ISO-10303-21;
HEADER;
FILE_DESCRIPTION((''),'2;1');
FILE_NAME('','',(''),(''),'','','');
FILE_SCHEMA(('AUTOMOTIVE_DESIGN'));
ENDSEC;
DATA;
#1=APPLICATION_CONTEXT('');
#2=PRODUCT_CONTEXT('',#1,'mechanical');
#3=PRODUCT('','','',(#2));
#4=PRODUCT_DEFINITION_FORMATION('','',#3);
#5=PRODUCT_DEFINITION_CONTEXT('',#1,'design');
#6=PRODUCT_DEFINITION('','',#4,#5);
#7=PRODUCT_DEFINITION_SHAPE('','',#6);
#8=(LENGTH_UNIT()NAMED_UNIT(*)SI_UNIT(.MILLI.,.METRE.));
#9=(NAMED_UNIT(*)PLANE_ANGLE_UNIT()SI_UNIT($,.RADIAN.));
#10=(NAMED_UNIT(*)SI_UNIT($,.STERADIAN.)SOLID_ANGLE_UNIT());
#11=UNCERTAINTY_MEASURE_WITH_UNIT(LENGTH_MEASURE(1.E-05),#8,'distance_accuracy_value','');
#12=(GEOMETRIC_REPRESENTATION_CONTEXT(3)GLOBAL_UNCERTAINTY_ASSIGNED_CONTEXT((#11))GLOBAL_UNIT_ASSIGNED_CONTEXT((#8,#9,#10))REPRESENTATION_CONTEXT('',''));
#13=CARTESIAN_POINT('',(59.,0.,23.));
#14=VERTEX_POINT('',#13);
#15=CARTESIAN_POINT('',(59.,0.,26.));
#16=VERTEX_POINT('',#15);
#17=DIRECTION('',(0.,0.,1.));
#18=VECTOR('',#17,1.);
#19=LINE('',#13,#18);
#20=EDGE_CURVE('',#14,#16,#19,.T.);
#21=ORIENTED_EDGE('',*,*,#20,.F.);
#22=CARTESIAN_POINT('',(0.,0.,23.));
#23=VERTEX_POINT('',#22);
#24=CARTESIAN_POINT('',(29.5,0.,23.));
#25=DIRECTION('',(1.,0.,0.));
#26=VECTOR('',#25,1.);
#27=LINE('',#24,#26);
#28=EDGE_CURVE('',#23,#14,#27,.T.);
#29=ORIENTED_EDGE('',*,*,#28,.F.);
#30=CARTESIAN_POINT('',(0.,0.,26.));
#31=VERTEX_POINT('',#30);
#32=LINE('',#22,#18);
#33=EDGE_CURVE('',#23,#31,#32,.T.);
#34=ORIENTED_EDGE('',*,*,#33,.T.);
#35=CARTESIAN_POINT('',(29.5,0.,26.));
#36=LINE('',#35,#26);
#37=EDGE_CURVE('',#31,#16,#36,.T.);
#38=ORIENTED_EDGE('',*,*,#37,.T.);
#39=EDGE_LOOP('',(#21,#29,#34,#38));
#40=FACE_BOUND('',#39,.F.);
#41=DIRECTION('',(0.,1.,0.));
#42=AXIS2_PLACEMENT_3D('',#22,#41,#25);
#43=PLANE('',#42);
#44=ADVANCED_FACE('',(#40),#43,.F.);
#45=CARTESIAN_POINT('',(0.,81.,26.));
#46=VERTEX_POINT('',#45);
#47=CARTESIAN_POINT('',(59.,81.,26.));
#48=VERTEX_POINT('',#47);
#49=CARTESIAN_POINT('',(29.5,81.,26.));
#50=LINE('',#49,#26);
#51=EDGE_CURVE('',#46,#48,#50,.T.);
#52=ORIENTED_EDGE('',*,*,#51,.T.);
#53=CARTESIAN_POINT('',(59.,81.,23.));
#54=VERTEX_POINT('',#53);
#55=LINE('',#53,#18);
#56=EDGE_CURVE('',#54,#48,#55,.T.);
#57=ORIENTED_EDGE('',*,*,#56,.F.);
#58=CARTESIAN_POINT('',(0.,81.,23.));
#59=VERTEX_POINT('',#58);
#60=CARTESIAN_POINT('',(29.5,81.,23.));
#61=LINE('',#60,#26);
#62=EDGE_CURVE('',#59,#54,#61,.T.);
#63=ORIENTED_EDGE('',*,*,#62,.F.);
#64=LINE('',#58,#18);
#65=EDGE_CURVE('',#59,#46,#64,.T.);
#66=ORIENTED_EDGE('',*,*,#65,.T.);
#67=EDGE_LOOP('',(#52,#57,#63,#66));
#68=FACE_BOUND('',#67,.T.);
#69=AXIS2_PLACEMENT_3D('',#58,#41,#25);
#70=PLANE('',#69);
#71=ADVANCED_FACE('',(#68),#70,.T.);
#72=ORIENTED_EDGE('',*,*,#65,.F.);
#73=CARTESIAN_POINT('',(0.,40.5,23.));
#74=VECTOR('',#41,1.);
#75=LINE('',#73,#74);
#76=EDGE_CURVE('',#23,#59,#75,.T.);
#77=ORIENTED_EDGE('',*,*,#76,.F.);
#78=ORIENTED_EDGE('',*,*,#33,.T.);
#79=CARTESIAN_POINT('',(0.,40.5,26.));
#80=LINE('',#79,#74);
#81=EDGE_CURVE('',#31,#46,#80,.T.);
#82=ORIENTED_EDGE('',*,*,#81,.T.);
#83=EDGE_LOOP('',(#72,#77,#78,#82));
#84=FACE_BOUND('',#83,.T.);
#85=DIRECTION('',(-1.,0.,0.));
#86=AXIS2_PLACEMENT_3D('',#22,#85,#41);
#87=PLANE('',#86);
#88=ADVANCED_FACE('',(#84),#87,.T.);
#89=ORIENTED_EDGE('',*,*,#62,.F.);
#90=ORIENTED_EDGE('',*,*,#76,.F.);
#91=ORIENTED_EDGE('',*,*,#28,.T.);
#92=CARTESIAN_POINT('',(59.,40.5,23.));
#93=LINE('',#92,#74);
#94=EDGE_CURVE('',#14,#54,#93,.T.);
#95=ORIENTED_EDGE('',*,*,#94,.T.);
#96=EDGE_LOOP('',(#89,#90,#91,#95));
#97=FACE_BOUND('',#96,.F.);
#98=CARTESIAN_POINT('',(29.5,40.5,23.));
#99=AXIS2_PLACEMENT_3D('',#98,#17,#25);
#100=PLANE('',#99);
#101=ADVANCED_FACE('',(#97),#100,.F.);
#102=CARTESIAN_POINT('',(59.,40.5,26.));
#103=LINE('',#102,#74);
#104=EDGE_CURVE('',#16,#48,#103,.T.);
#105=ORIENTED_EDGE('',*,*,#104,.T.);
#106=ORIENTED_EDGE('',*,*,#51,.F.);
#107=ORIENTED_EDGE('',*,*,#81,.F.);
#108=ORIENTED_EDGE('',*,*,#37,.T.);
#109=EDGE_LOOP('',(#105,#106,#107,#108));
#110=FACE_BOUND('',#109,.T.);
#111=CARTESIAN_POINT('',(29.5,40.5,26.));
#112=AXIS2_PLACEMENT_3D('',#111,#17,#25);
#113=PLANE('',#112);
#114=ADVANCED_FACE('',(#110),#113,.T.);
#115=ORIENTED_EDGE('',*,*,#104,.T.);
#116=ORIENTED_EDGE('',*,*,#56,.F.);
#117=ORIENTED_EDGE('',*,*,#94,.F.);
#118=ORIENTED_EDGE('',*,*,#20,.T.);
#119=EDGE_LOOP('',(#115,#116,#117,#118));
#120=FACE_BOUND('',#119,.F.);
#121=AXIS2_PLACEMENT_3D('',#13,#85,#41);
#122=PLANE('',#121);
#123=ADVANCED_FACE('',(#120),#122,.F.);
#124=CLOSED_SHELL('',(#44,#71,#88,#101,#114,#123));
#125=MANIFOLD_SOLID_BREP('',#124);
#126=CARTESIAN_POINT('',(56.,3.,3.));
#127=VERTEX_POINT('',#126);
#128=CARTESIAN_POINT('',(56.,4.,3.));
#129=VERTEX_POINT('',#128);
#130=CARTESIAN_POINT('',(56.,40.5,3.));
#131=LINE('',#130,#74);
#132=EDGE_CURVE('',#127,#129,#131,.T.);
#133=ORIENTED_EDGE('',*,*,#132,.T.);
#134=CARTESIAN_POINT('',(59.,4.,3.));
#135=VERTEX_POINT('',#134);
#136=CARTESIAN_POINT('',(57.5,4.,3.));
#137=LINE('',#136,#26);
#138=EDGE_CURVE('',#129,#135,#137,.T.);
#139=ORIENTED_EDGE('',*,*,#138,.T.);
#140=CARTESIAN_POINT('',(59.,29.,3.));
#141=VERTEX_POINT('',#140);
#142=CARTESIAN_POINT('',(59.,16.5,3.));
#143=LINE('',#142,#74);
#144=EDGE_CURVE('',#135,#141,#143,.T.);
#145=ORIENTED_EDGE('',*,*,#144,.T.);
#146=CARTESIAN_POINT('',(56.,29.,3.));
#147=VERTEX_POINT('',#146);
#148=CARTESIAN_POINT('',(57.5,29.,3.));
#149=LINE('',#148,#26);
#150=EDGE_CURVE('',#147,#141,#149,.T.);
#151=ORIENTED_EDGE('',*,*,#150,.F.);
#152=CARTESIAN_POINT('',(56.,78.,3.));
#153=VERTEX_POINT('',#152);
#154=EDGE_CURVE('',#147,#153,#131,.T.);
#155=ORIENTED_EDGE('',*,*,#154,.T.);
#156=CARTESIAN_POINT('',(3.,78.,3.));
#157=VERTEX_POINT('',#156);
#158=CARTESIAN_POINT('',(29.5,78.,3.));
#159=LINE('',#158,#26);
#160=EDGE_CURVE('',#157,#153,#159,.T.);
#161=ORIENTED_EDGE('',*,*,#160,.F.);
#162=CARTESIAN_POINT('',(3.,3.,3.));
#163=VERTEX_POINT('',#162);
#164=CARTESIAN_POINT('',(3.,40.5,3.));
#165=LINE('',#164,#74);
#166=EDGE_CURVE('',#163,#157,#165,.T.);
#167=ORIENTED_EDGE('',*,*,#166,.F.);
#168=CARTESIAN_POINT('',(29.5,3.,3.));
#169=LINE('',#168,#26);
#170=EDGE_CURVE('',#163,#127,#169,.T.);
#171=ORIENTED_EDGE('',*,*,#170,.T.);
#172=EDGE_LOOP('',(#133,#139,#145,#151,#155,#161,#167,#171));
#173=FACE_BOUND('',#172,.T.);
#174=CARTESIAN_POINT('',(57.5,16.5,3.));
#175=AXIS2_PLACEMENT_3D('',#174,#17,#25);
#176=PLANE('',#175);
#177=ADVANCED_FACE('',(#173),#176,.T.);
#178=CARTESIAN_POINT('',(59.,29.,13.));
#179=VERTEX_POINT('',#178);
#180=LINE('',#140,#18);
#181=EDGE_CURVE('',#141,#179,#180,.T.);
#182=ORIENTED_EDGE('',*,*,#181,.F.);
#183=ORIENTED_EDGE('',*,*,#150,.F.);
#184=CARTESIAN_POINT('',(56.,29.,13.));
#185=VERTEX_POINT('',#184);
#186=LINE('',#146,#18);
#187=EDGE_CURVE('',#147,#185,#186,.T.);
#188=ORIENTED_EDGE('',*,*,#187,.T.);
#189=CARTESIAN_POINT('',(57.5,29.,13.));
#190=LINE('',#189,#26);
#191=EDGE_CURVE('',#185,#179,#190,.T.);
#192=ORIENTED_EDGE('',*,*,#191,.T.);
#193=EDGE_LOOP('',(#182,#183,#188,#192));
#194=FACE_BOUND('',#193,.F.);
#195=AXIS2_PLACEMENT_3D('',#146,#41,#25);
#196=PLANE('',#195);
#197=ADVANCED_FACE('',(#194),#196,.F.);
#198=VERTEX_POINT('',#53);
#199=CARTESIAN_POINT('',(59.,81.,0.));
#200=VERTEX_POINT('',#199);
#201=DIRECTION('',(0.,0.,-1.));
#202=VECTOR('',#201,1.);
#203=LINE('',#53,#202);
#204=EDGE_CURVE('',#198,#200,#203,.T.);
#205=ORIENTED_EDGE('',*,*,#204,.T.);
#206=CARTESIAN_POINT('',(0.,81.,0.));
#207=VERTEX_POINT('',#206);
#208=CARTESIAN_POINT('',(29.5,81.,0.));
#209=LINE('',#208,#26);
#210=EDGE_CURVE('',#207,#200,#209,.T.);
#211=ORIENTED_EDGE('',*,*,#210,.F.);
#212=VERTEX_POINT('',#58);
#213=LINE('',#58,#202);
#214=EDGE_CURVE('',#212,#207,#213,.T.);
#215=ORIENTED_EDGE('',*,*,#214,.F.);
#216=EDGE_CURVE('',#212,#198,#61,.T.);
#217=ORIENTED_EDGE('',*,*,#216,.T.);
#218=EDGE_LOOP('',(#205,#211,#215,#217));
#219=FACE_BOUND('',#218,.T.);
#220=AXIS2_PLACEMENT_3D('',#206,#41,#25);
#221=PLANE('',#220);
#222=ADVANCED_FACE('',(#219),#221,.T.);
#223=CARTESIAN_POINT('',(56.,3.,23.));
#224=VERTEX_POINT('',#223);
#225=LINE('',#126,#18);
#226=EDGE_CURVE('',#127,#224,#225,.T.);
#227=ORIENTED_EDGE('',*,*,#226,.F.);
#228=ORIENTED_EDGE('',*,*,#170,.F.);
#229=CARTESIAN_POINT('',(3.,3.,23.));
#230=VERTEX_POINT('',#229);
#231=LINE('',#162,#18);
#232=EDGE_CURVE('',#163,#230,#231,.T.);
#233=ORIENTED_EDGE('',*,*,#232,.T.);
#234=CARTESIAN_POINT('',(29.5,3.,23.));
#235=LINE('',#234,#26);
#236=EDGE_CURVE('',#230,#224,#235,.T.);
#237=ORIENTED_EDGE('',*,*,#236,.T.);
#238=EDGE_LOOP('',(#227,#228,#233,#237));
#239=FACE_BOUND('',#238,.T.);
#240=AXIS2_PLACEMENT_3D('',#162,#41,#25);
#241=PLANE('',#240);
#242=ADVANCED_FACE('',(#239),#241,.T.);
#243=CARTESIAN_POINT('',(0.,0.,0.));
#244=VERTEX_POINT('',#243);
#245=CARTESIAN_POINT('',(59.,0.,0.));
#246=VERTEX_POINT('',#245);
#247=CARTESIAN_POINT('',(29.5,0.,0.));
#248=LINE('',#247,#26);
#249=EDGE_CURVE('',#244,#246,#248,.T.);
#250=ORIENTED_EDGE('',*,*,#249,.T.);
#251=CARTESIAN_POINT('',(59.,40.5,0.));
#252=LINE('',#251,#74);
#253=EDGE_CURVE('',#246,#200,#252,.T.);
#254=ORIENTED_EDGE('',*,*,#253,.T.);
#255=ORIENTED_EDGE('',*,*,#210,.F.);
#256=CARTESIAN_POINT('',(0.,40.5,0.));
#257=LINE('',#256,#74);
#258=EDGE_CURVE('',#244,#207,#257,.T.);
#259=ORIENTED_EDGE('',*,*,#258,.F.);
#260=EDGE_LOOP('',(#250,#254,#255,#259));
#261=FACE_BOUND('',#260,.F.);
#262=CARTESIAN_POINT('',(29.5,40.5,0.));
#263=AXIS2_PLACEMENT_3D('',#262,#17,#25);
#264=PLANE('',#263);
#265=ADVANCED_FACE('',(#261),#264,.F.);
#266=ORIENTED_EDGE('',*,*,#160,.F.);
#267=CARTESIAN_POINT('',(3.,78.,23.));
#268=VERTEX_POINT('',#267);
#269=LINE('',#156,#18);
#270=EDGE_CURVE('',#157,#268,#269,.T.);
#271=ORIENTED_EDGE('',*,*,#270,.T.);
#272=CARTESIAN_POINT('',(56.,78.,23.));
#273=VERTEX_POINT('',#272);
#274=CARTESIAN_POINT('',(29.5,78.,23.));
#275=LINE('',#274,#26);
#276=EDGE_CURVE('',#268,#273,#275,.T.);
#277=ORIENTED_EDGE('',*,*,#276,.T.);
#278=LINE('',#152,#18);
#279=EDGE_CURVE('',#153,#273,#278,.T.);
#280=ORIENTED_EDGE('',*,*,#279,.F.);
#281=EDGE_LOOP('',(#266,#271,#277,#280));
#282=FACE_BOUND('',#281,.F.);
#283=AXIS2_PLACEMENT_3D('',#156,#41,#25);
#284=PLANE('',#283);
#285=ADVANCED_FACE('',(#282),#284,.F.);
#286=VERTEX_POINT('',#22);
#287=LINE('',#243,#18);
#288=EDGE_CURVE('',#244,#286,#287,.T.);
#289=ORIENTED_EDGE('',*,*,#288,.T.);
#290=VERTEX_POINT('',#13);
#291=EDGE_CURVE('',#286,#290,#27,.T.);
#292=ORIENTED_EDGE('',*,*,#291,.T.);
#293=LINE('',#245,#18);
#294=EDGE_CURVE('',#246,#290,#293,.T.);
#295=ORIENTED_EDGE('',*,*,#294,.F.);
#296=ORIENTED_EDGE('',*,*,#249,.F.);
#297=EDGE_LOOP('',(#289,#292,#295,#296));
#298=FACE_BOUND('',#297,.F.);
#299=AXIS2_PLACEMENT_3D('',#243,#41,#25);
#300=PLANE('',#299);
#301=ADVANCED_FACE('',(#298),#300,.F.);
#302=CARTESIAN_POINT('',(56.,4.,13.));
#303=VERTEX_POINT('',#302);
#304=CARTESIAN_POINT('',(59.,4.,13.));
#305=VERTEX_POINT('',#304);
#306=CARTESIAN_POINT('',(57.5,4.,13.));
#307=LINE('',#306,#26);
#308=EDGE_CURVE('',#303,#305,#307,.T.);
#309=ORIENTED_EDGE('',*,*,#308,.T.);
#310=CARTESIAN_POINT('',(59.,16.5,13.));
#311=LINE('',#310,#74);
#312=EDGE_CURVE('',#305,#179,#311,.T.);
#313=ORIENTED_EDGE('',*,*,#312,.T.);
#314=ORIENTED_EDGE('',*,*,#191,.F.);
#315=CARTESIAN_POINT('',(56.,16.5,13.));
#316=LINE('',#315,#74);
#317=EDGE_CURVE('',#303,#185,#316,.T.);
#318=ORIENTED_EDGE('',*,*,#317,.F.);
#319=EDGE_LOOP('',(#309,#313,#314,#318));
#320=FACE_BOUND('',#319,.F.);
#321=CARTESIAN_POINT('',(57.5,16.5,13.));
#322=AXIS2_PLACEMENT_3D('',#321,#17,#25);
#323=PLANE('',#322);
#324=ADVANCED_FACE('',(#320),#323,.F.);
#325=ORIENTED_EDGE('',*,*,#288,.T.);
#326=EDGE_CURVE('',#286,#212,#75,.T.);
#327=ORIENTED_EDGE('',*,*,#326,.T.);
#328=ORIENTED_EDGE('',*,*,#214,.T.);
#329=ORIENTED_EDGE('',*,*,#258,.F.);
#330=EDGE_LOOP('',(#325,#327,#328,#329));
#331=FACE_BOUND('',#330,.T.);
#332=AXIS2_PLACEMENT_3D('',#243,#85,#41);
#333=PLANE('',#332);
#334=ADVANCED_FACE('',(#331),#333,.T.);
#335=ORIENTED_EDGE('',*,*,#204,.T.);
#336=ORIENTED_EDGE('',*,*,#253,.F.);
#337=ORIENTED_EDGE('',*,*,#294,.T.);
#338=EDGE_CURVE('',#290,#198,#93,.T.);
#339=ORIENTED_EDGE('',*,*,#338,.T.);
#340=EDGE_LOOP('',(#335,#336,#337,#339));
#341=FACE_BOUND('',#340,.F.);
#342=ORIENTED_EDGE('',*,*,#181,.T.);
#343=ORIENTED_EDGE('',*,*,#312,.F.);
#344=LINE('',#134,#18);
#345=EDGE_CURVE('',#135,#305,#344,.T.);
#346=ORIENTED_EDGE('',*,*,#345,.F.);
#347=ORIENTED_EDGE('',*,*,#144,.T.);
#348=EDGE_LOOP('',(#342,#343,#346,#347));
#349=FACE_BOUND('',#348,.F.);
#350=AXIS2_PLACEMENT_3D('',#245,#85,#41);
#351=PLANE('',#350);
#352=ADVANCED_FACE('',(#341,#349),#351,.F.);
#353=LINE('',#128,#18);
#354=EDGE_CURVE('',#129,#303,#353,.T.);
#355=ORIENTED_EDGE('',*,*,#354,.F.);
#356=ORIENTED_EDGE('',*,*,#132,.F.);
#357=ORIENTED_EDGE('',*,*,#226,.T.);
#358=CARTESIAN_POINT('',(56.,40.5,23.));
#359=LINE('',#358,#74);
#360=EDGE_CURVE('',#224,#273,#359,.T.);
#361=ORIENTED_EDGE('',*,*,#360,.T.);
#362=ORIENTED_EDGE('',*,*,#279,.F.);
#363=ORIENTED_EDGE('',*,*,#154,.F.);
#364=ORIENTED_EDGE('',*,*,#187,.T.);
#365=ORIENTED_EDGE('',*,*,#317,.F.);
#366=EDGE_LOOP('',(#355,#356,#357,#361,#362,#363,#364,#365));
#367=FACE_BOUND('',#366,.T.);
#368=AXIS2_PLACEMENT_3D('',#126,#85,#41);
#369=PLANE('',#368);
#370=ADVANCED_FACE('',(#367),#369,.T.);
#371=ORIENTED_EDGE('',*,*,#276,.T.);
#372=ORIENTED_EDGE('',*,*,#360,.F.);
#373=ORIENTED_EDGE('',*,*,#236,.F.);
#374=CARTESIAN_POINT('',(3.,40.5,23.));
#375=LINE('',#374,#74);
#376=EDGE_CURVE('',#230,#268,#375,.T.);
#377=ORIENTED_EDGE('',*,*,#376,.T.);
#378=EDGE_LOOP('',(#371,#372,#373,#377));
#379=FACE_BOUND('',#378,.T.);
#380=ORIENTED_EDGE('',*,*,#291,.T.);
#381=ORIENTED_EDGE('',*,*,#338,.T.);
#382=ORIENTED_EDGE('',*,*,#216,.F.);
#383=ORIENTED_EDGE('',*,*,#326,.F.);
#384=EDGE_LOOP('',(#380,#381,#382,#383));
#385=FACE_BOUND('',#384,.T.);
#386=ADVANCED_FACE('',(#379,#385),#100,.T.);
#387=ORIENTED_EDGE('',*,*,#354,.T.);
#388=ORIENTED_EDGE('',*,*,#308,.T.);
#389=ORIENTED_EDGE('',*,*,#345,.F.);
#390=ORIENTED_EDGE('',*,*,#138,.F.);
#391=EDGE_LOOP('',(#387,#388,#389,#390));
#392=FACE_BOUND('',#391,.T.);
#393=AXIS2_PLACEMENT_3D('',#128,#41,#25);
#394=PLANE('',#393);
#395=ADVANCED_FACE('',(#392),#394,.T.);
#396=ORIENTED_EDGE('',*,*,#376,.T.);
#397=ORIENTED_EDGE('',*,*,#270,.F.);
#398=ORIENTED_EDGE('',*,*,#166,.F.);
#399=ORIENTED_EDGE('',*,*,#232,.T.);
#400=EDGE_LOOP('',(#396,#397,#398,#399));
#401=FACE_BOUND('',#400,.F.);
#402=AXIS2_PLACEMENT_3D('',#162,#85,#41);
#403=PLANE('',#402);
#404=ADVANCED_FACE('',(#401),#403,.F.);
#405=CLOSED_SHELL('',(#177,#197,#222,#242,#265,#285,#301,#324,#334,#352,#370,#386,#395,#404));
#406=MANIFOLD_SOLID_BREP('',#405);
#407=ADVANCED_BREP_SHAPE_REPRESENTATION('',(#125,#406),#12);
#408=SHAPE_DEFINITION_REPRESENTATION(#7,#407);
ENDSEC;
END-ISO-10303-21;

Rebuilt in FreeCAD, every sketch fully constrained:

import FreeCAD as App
import Part
import Sketcher


def add_polygon(sketch, points):
    """Adds a closed chain of lines whose ends are joined by coincident constraints."""
    first, n = sketch.GeometryCount, len(points)
    for a, b in zip(points, points[1:] + points[:1]):
        sketch.addGeometry(Part.LineSegment(App.Vector(*a, 0), App.Vector(*b, 0)), False)
    for i in range(n):
        sketch.addConstraint(Sketcher.Constraint("Coincident", first + i, 2, first + (i + 1) % n, 1))

doc = App.newDocument("Part")
body = doc.addObject("PartDesign::Body", "Body")

# Sketch on XY plane
sketch1 = body.newObject("Sketcher::SketchObject", "Sketch")
sketch1.AttachmentSupport = (doc.getObject("XY_Plane"), [""])
sketch1.MapMode = "FlatFace"
sketch1.AttachmentOffset = App.Placement(App.Vector(0, 0, 3), App.Rotation())
add_polygon(sketch1, [(56, 29), (56, 4), (59, 4), (59, 29)])  # lines 0-3
sketch1.addConstraint([
    Sketcher.Constraint("Vertical", 0),
    Sketcher.Constraint("Horizontal", 1),
    Sketcher.Constraint("Vertical", 2),
    Sketcher.Constraint("Horizontal", 3),
    Sketcher.Constraint("DistanceX", 1, 1, 1, 2, 3.0),
    Sketcher.Constraint("DistanceY", 0, 2, 0, 1, 25.0),
    Sketcher.Constraint("DistanceX", -1, 1, 0, 2, 56.0),
    Sketcher.Constraint("DistanceY", -1, 1, 0, 2, 4.0),
])
pad1 = body.newObject("PartDesign::Pad", "Pad")
pad1.Profile = sketch1
pad1.Length = 10
body2 = doc.addObject("PartDesign::Body", "Body001")

# Sketch on XY plane
sketch2 = body2.newObject("Sketcher::SketchObject", "Sketch001")
sketch2.AttachmentSupport = (doc.getObject("XY_Plane001"), [""])
sketch2.MapMode = "FlatFace"
add_polygon(sketch2, [(0, 81), (0, 0), (59, 0), (59, 81)])  # lines 0-3
sketch2.addConstraint([
    Sketcher.Constraint("Vertical", 0),
    Sketcher.Constraint("Horizontal", 1),
    Sketcher.Constraint("Vertical", 2),
    Sketcher.Constraint("Horizontal", 3),
    Sketcher.Constraint("Coincident", 0, 2, -1, 1),
    Sketcher.Constraint("DistanceX", 1, 1, 1, 2, 59.0),
    Sketcher.Constraint("DistanceY", 0, 2, 0, 1, 81.0),
])
pad2 = body2.newObject("PartDesign::Pad", "Pad001")
pad2.Profile = sketch2
pad2.Length = 3
body3 = doc.addObject("PartDesign::Body", "Body002")

# Sketch on XY plane
sketch3 = body3.newObject("Sketcher::SketchObject", "Sketch002")
sketch3.AttachmentSupport = (doc.getObject("XY_Plane002"), [""])
sketch3.MapMode = "FlatFace"
add_polygon(sketch3, [(3, 78), (3, 3), (56, 3), (56, 78)])  # lines 0-3
sketch3.addConstraint([
    Sketcher.Constraint("Vertical", 0),
    Sketcher.Constraint("Horizontal", 1),
    Sketcher.Constraint("Vertical", 2),
    Sketcher.Constraint("Horizontal", 3),
    Sketcher.Constraint("DistanceX", 1, 1, 1, 2, 53.0),
    Sketcher.Constraint("DistanceY", 0, 2, 0, 1, 75.0),
    Sketcher.Constraint("DistanceX", -1, 1, 0, 2, 3.0),
    Sketcher.Constraint("DistanceY", -1, 1, 0, 2, 3.0),
])
pad3 = body3.newObject("PartDesign::Pad", "Pad002")
pad3.Profile = sketch3
pad3.Length = 20
body4 = doc.addObject("PartDesign::Body", "Body003")

# Sketch on XY plane
sketch4 = body4.newObject("Sketcher::SketchObject", "Sketch003")
sketch4.AttachmentSupport = (doc.getObject("XY_Plane003"), [""])
sketch4.MapMode = "FlatFace"
add_polygon(sketch4, [(0, 81), (0, 0), (59, 0), (59, 81)])  # lines 0-3
sketch4.addConstraint([
    Sketcher.Constraint("Vertical", 0),
    Sketcher.Constraint("Horizontal", 1),
    Sketcher.Constraint("Vertical", 2),
    Sketcher.Constraint("Horizontal", 3),
    Sketcher.Constraint("Coincident", 0, 2, -1, 1),
    Sketcher.Constraint("DistanceX", 1, 1, 1, 2, 59.0),
    Sketcher.Constraint("DistanceY", 0, 2, 0, 1, 81.0),
])
pad4 = body4.newObject("PartDesign::Pad", "Pad003")
pad4.Profile = sketch4
pad4.Length = 20
doc.recompute()

boolean = body4.newObject("PartDesign::Boolean", "Boolean")
boolean.Type = "Cut"
boolean.addObjects([body3])
body5 = doc.addObject("PartDesign::Body", "Body004")
doc.recompute()

body4.Placement = App.Placement(App.Vector(0, 0, 3), App.Rotation(App.Vector(0, 0, 1), 0))
boolean2 = body5.newObject("PartDesign::Boolean", "Boolean001")
boolean2.Type = "Fuse"
boolean2.addObjects([body4])
doc.recompute()

boolean3 = body5.newObject("PartDesign::Boolean", "Boolean002")
boolean3.Type = "Fuse"
boolean3.addObjects([body2])
doc.recompute()

boolean4 = body5.newObject("PartDesign::Boolean", "Boolean003")
boolean4.Type = "Cut"
boolean4.addObjects([body])
body6 = doc.addObject("PartDesign::Body", "Body005")

# Sketch on XY plane
sketch5 = body6.newObject("Sketcher::SketchObject", "Sketch004")
sketch5.AttachmentSupport = (doc.getObject("XY_Plane005"), [""])
sketch5.MapMode = "FlatFace"
sketch5.AttachmentOffset = App.Placement(App.Vector(0, 0, 23), App.Rotation())
add_polygon(sketch5, [(0, 81), (0, 0), (59, 0), (59, 81)])  # lines 0-3
sketch5.addConstraint([
    Sketcher.Constraint("Vertical", 0),
    Sketcher.Constraint("Horizontal", 1),
    Sketcher.Constraint("Vertical", 2),
    Sketcher.Constraint("Horizontal", 3),
    Sketcher.Constraint("Coincident", 0, 2, -1, 1),
    Sketcher.Constraint("DistanceX", 1, 1, 1, 2, 59.0),
    Sketcher.Constraint("DistanceY", 0, 2, 0, 1, 81.0),
])
pad5 = body6.newObject("PartDesign::Pad", "Pad004")
pad5.Profile = sketch5
pad5.Length = 3

doc.recompute()
